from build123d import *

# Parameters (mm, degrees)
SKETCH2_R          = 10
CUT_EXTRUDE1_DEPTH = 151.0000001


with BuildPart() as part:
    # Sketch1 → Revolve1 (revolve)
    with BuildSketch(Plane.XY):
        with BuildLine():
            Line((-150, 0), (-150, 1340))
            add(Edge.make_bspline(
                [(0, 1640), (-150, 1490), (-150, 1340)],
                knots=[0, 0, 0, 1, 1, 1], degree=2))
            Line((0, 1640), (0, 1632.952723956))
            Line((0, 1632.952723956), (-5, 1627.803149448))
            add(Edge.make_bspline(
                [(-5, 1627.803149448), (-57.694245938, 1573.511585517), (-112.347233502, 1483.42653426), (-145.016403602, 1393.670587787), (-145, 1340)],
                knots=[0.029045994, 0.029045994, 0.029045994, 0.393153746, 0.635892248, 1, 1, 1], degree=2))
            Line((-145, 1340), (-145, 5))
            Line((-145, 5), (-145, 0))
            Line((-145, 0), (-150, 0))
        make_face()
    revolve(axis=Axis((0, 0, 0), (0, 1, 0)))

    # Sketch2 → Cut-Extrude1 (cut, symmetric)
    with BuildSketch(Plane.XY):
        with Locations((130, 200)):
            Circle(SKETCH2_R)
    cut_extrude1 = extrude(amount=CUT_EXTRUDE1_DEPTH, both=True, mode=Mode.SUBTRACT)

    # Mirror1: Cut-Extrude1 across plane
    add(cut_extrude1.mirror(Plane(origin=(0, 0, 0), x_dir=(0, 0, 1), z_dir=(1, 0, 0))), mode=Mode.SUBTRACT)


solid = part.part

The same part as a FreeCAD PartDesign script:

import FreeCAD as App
import Part
import Sketcher

V = App.Vector
Q = App.Units.Quantity

doc = App.newDocument("Part")
body = doc.addObject("PartDesign::Body", "Body")

sketch1 = body.newObject("Sketcher::SketchObject", "Sketch")
sketch1.AttachmentSupport = (doc.getObject("XY_Plane"), [""])
sketch1.MapMode = "FlatFace"
sketch1.addGeometry(Part.LineSegment(V(-150, 1340, 0), V(-150, 0, 0)), False)
sketch1.addGeometry(Part.LineSegment(V(-150, 0, 0), V(-145, 0, 0)), False)
sketch1.addGeometry(Part.LineSegment(V(-145, 0, 0), V(-145, 1340, 0)), False)
sketch1.addGeometry(Part.BSplineCurve([V(-5, 1627.803149, 0), V(-57.694246, 1573.511586, 0), V(-112.347234, 1483.426534, 0), V(-145.016404, 1393.670588, 0), V(-145, 1340, 0)], [3, 1, 1, 3], [0.029045994, 0.393153746, 0.635892248, 1], False, 2, [1, 1, 1, 1, 1], False), False)
sketch1.addGeometry(Part.LineSegment(V(-5, 1627.803149, 0), V(0, 1632.952724, 0)), False)
sketch1.addGeometry(Part.LineSegment(V(0, 1632.952724, 0), V(0, 1640, 0)), False)
sketch1.addGeometry(Part.BSplineCurve([V(0, 1640, 0), V(-150, 1490, 0), V(-150, 1340, 0)], [3, 3], [0, 1], False, 2, [1, 1, 1], False), False)
sketch1.addConstraint(Sketcher.Constraint("Block", 3))
sketch1.addConstraint(Sketcher.Constraint("Block", 6))
sketch1.addConstraint(Sketcher.Constraint("Coincident", 0, 2, 1, 1))
sketch1.addConstraint(Sketcher.Constraint("Coincident", 1, 2, 2, 1))
sketch1.addConstraint(Sketcher.Constraint("Coincident", 2, 2, 3, 2))
sketch1.addConstraint(Sketcher.Constraint("Coincident", 3, 1, 4, 1))
sketch1.addConstraint(Sketcher.Constraint("Coincident", 4, 2, 5, 1))
sketch1.addConstraint(Sketcher.Constraint("Coincident", 5, 2, 6, 1))
sketch1.addConstraint(Sketcher.Constraint("Coincident", 6, 2, 0, 1))
sketch1.addConstraint(Sketcher.Constraint("Vertical", 0))
sketch1.addConstraint(Sketcher.Constraint("Horizontal", 1))
sketch1.addConstraint(Sketcher.Constraint("Vertical", 2))
sketch1.addConstraint(Sketcher.Constraint("Vertical", 5))
sketch1.addConstraint(Sketcher.Constraint("PointOnObject", 0, 2, -1))
sketch1.addConstraint(Sketcher.Constraint("DistanceY", 5, 1, 5, 2, Q("7.047276 mm")))
revolution = body.newObject("PartDesign::Revolution", "Revolution")
revolution.Profile = sketch1
revolution.ReferenceAxis = (sketch1, ["V_Axis"])
revolution.Angle = 360

sketch2 = body.newObject("Sketcher::SketchObject", "Sketch001")
sketch2.AttachmentSupport = (doc.getObject("XY_Plane"), [""])
sketch2.MapMode = "FlatFace"
sketch2.addGeometry(Part.Circle(V(130, 200, 0), V(0, 0, 1), 10), False)
sketch2.addConstraint(Sketcher.Constraint("Diameter", 0, Q("20 mm")))
sketch2.addConstraint(Sketcher.Constraint("DistanceX", -1, 1, 0, 3, Q("130 mm")))
sketch2.addConstraint(Sketcher.Constraint("DistanceY", -1, 1, 0, 3, Q("200 mm")))
pocket1 = body.newObject("PartDesign::Pocket", "Pocket")
pocket1.Profile = sketch2
pocket1.Length = 302
pocket1.Midplane = True
doc.recompute()

mirrored = body.newObject("PartDesign::Mirrored", "Mirrored")
mirrored.Originals = [pocket1]
mirrored.MirrorPlane = (doc.getObject("YZ_Plane"), [""])
body.Tip = mirrored

doc.recompute()
